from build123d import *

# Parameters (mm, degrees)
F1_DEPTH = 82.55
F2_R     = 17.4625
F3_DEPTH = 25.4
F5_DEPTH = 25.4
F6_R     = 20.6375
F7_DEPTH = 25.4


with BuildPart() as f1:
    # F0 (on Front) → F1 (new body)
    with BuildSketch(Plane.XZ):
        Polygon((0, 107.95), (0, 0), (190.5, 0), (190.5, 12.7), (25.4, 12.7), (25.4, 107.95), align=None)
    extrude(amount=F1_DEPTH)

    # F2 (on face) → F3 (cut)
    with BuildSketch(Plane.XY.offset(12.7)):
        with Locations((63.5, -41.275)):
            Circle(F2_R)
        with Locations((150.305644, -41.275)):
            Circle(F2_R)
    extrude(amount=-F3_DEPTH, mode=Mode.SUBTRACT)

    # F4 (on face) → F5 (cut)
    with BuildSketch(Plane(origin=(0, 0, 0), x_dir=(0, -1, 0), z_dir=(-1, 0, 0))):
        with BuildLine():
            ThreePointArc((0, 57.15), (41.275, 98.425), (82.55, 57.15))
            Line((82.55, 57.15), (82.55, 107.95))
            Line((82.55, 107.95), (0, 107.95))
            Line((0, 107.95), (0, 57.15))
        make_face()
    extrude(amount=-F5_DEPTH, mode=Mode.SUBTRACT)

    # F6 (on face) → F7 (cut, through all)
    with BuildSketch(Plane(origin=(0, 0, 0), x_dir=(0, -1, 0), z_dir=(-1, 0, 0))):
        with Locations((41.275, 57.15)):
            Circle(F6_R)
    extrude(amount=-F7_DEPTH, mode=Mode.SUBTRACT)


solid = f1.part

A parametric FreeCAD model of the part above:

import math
import FreeCAD as App
import Part
import Sketcher

V = App.Vector
Q = App.Units.Quantity


def add_polygon(sketch, points):
    """Adds a closed chain of lines whose ends are joined by coincident constraints."""
    first, n = sketch.GeometryCount, len(points)
    for a, b in zip(points, points[1:] + points[:1]):
        sketch.addGeometry(Part.LineSegment(App.Vector(*a, 0), App.Vector(*b, 0)), False)
    for i in range(n):
        sketch.addConstraint(Sketcher.Constraint("Coincident", first + i, 2, first + (i + 1) % n, 1))

doc = App.newDocument("Part")
body = doc.addObject("PartDesign::Body", "Body")

# Sketch on XZ plane
sketch1 = doc.addObject("Sketcher::SketchObject", "Sketch")
body.addObject(sketch1)
sketch1.AttachmentSupport = (doc.XZ_Plane, [""])
sketch1.MapMode = "FlatFace"
add_polygon(sketch1, [(0, 108), (0, 0), (190, 0), (190, 13), (25, 13), (25, 108)])  # lines 0-5
sketch1.addConstraint([
    Sketcher.Constraint("Vertical", 0),
    Sketcher.Constraint("Horizontal", 1),
    Sketcher.Constraint("Vertical", 2),
    Sketcher.Constraint("Horizontal", 3),
    Sketcher.Constraint("Vertical", 4),
    Sketcher.Constraint("Horizontal", 5),
    Sketcher.Constraint("Coincident", 0, 2, -1, 1),
    Sketcher.Constraint("DistanceX", 5, 2, 5, 1, Q("1 in")),
    Sketcher.Constraint("DistanceX", 1, 1, 1, 2, Q("7.5 in")),
    Sketcher.Constraint("DistanceY", 2, 1, 2, 2, Q("0.5 in")),
    Sketcher.Constraint("DistanceY", 0, 2, 0, 1, Q("4.25 in")),
])
pad1 = doc.addObject("PartDesign::Pad", "Pad")
body.addObject(pad1)
pad1.Profile = sketch1
pad1.Length = Q("3.25 in")

# Sketch on XY plane
sketch2 = doc.addObject("Sketcher::SketchObject", "Sketch001")
body.addObject(sketch2)
sketch2.AttachmentSupport = (doc.XY_Plane, [""])
sketch2.MapMode = "FlatFace"
sketch2.AttachmentOffset = App.Placement(V(0, 0, 0.5 * 25.4), App.Rotation())
sketch2.addGeometry([
    Part.Circle(V(64, -41, 0), V(0, 0, 1), 17),
    Part.Circle(V(150, -41, 0), V(0, 0, 1), 17),
], False)
sketch2.addConstraint([
    Sketcher.Constraint("Equal", 0, 1),
    Sketcher.Constraint("Horizontal", 0, 3, 1, 3),
    Sketcher.Constraint("Diameter", 0, Q("1.375 in")),
    Sketcher.Constraint("DistanceX", -1, 1, 0, 3, Q("2.5 in")),
    Sketcher.Constraint("DistanceY", 0, 3, -1, 1, Q("1.625 in")),
    Sketcher.Constraint("DistanceX", -1, 1, 1, 3, 150.305644),
])
pocket1 = doc.addObject("PartDesign::Pocket", "Pocket")
body.addObject(pocket1)
pocket1.Profile = sketch2
pocket1.Length = Q("1 in")

# Sketch on YZ plane
sketch3 = doc.addObject("Sketcher::SketchObject", "Sketch002")
body.addObject(sketch3)
sketch3.AttachmentSupport = (doc.YZ_Plane, [""])
sketch3.MapMode = "FlatFace"
sketch3.addGeometry([
    Part.ArcOfCircle(Part.Circle(V(-41, 57, 0), V(0, 0, 1), 41), math.radians(0), math.radians(180)),
    Part.LineSegment(V(-83, 57, 0), V(-83, 108, 0)),
    Part.LineSegment(V(-83, 108, 0), V(0, 108, 0)),
    Part.LineSegment(V(0, 108, 0), V(0, 57, 0)),
], False)
sketch3.addConstraint([
    Sketcher.Constraint("Tangent", 0, 2, 1, 1),
    Sketcher.Constraint("Coincident", 1, 2, 2, 1),
    Sketcher.Constraint("Coincident", 2, 2, 3, 1),
    Sketcher.Constraint("Tangent", 3, 2, 0, 1),
    Sketcher.Constraint("Vertical", 1),
    Sketcher.Constraint("Horizontal", 2),
    Sketcher.Constraint("Vertical", 3),
    Sketcher.Constraint("PointOnObject", 2, 2, -2),
    Sketcher.Constraint("DistanceY", 1, 1, 1, 2, Q("2 in")),
    Sketcher.Constraint("Radius", 0, Q("1.625 in")),
    Sketcher.Constraint("DistanceY", -1, 1, 0, 3, Q("2.25 in")),
])
pocket2 = doc.addObject("PartDesign::Pocket", "Pocket001")
body.addObject(pocket2)
pocket2.Profile = sketch3
pocket2.Length = Q("1 in")
pocket2.Reversed = True

# Sketch on YZ plane
sketch4 = doc.addObject("Sketcher::SketchObject", "Sketch003")
body.addObject(sketch4)
sketch4.AttachmentSupport = (doc.YZ_Plane, [""])
sketch4.MapMode = "FlatFace"
sketch4.addGeometry(Part.Circle(V(-41, 57, 0), V(0, 0, 1), 21), False)
sketch4.addConstraint([
    Sketcher.Constraint("Diameter", 0, Q("1.625 in")),
    Sketcher.Constraint("DistanceY", -1, 1, 0, 3, Q("2.25 in")),
    Sketcher.Constraint("DistanceX", 0, 3, -1, 1, Q("1.625 in")),
])
pocket3 = doc.addObject("PartDesign::Pocket", "Pocket002")
body.addObject(pocket3)
pocket3.Profile = sketch4
pocket3.Type = "ThroughAll"
pocket3.Reversed = True

doc.recompute()
